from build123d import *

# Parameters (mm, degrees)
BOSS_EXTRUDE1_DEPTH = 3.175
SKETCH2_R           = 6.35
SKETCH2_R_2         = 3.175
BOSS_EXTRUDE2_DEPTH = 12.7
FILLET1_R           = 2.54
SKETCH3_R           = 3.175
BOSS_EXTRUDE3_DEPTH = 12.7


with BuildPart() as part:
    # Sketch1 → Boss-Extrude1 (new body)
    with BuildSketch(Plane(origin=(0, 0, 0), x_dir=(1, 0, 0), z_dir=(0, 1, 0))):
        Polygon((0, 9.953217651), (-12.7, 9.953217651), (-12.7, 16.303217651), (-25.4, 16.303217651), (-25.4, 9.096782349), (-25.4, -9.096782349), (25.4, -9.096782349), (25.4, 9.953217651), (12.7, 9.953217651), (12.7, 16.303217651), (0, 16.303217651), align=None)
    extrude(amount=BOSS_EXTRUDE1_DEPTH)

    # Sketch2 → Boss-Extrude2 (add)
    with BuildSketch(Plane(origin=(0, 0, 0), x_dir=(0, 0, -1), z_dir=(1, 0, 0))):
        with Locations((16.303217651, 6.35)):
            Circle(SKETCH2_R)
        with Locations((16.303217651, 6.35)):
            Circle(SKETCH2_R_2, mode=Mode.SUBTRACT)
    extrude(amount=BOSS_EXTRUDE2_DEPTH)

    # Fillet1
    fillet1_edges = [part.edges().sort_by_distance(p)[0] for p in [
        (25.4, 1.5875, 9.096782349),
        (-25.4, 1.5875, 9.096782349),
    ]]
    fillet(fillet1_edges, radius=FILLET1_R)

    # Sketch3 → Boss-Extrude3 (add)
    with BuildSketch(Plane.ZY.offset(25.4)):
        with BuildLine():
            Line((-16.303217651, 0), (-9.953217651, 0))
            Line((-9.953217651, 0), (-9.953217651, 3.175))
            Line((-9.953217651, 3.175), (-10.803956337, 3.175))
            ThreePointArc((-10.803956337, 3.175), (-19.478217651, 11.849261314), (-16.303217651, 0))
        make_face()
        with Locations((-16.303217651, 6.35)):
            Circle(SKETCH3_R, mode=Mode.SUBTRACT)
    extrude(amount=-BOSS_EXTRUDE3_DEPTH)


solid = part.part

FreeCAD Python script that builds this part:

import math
import FreeCAD as App
import Part
import Sketcher
from FreeCAD import Vector
Q = App.Units.Quantity


def edges_at(feature, points):
    """Names of the edges that pass closest to the given points."""
    edges = feature.Shape.Edges
    near = lambda p: min(range(len(edges)), key=lambda i: edges[i].distToShape(Part.Vertex(*p))[0])
    return sorted({f"Edge{near(p) + 1}" for p in points})

doc = App.newDocument("Part")
body = doc.addObject("PartDesign::Body", "Body")

# Sketch on XZ plane
sketch1 = doc.addObject("Sketcher::SketchObject", "Sketch")
body.addObject(sketch1)
sketch1.AttachmentSupport = (doc.XZ_Plane, [""])
sketch1.MapMode = "FlatFace"
sketch1.addGeometry(Part.LineSegment(Vector(0, -10, 0), Vector(-13, -10, 0)), False)
sketch1.addGeometry(Part.LineSegment(Vector(-13, -10, 0), Vector(-13, -16, 0)), False)
sketch1.addGeometry(Part.LineSegment(Vector(-13, -16, 0), Vector(-25, -16, 0)), False)
sketch1.addGeometry(Part.LineSegment(Vector(-25, -16, 0), Vector(-25, 9, 0)), False)
sketch1.addGeometry(Part.LineSegment(Vector(-25, 9, 0), Vector(25, 9, 0)), False)
sketch1.addGeometry(Part.LineSegment(Vector(25, 9, 0), Vector(25, -10, 0)), False)
sketch1.addGeometry(Part.LineSegment(Vector(25, -10, 0), Vector(13, -10, 0)), False)
sketch1.addGeometry(Part.LineSegment(Vector(13, -10, 0), Vector(13, -16, 0)), False)
sketch1.addGeometry(Part.LineSegment(Vector(13, -16, 0), Vector(0, -16, 0)), False)
sketch1.addGeometry(Part.LineSegment(Vector(0, -16, 0), Vector(0, -10, 0)), False)
sketch1.addConstraint(Sketcher.Constraint("Coincident", 0, 2, 1, 1))
sketch1.addConstraint(Sketcher.Constraint("Coincident", 1, 2, 2, 1))
sketch1.addConstraint(Sketcher.Constraint("Coincident", 2, 2, 3, 1))
sketch1.addConstraint(Sketcher.Constraint("Coincident", 3, 2, 4, 1))
sketch1.addConstraint(Sketcher.Constraint("Coincident", 4, 2, 5, 1))
sketch1.addConstraint(Sketcher.Constraint("Coincident", 5, 2, 6, 1))
sketch1.addConstraint(Sketcher.Constraint("Coincident", 6, 2, 7, 1))
sketch1.addConstraint(Sketcher.Constraint("Coincident", 7, 2, 8, 1))
sketch1.addConstraint(Sketcher.Constraint("Coincident", 8, 2, 9, 1))
sketch1.addConstraint(Sketcher.Constraint("Coincident", 9, 2, 0, 1))
sketch1.addConstraint(Sketcher.Constraint("Horizontal", 0))
sketch1.addConstraint(Sketcher.Constraint("Vertical", 1))
sketch1.addConstraint(Sketcher.Constraint("Horizontal", 2))
sketch1.addConstraint(Sketcher.Constraint("Vertical", 3))
sketch1.addConstraint(Sketcher.Constraint("Horizontal", 4))
sketch1.addConstraint(Sketcher.Constraint("Vertical", 5))
sketch1.addConstraint(Sketcher.Constraint("Horizontal", 6))
sketch1.addConstraint(Sketcher.Constraint("Vertical", 7))
sketch1.addConstraint(Sketcher.Constraint("Horizontal", 8))
sketch1.addConstraint(Sketcher.Constraint("Vertical", 9))
sketch1.addConstraint(Sketcher.Constraint("Symmetric", 0, 2, 6, 2, -2))
sketch1.addConstraint(Sketcher.Constraint("PointOnObject", 8, 2, -2))
sketch1.addConstraint(Sketcher.Constraint("Horizontal", 2, 2, 7, 2))
sketch1.addConstraint(Sketcher.Constraint("Equal", 0, 2))
sketch1.addConstraint(Sketcher.Constraint("Equal", 2, 6))
sketch1.addConstraint(Sketcher.Constraint("DistanceX", 4, 1, 4, 2, Q("2 in")))
sketch1.addConstraint(Sketcher.Constraint("DistanceY", 3, 1, 3, 2, Q("1 in")))
sketch1.addConstraint(Sketcher.Constraint("DistanceY", 1, 2, 1, 1, Q("0.25 in")))
sketch1.addConstraint(Sketcher.Constraint("DistanceY", 0, 2, -1, 1, 9.953218))
pad1 = doc.addObject("PartDesign::Pad", "Pad")
body.addObject(pad1)
pad1.Profile = sketch1
pad1.Length = Q("0.125 in")
pad1.Reversed = True

# Sketch on YZ plane
sketch2 = doc.addObject("Sketcher::SketchObject", "Sketch001")
body.addObject(sketch2)
sketch2.AttachmentSupport = (doc.YZ_Plane, [""])
sketch2.MapMode = "FlatFace"
sketch2.addGeometry(Part.Circle(Vector(6.3, -16.3, 0), Vector(0, 0, 1), 6.3), False)
sketch2.addGeometry(Part.Circle(Vector(6.3, -16.3, 0), Vector(0, 0, 1), 3.2), False)
sketch2.addConstraint(Sketcher.Constraint("Coincident", 1, 3, 0, 3))
sketch2.addConstraint(Sketcher.Constraint("Diameter", 0, Q("0.5 in")))
sketch2.addConstraint(Sketcher.Constraint("Diameter", 1, Q("0.25 in")))
sketch2.addConstraint(Sketcher.Constraint("DistanceX", -1, 1, 0, 3, Q("0.25 in")))
sketch2.addConstraint(Sketcher.Constraint("DistanceY", 0, 3, -1, 1, 16.303218))
pad2 = doc.addObject("PartDesign::Pad", "Pad001")
body.addObject(pad2)
pad2.Profile = sketch2
pad2.Length = Q("0.5 in")
doc.recompute()

fillet = doc.addObject("PartDesign::Fillet", "Fillet")
body.addObject(fillet)
fillet.Base = (pad2, edges_at(pad2, [(25.4, 1.587, 9.097), (-25.4, 1.587, 9.097)]))
fillet.Radius = Q("0.1 in")

# Sketch on YZ plane
sketch3 = doc.addObject("Sketcher::SketchObject", "Sketch002")
body.addObject(sketch3)
sketch3.AttachmentSupport = (doc.YZ_Plane, [""])
sketch3.MapMode = "FlatFace"
sketch3.AttachmentOffset = App.Placement(Vector(0, 0, -1 * 25.4), App.Rotation())
sketch3.addGeometry(Part.LineSegment(Vector(0, -16.3, 0), Vector(0, -10, 0)), False)
sketch3.addGeometry(Part.LineSegment(Vector(0, -10, 0), Vector(3.2, -10, 0)), False)
sketch3.addGeometry(Part.LineSegment(Vector(3.2, -10, 0), Vector(3.2, -10.8, 0)), False)
sketch3.addGeometry(Part.ArcOfCircle(Part.Circle(Vector(6.3, -16.3, 0), Vector(0, 0, 1), 6.3), math.radians(180), math.radians(480)), False)
sketch3.addGeometry(Part.Circle(Vector(6.3, -16.3, 0), Vector(0, 0, 1), 3.2), False)
sketch3.addConstraint(Sketcher.Constraint("Coincident", 0, 2, 1, 1))
sketch3.addConstraint(Sketcher.Constraint("Coincident", 1, 2, 2, 1))
sketch3.addConstraint(Sketcher.Constraint("Coincident", 2, 2, 3, 2))
sketch3.addConstraint(Sketcher.Constraint("Tangent", 3, 1, 0, 1))
sketch3.addConstraint(Sketcher.Constraint("Vertical", 0))
sketch3.addConstraint(Sketcher.Constraint("Horizontal", 1))
sketch3.addConstraint(Sketcher.Constraint("Vertical", 2))
sketch3.addConstraint(Sketcher.Constraint("Coincident", 4, 3, 3, 3))
sketch3.addConstraint(Sketcher.Constraint("PointOnObject", 0, 2, -2))
sketch3.addConstraint(Sketcher.Constraint("Diameter", 4, Q("0.25 in")))
sketch3.addConstraint(Sketcher.Constraint("Radius", 3, Q("0.25 in")))
sketch3.addConstraint(Sketcher.Constraint("DistanceY", 0, 1, 0, 2, Q("0.25 in")))
sketch3.addConstraint(Sketcher.Constraint("DistanceX", 1, 1, 1, 2, Q("0.125 in")))
sketch3.addConstraint(Sketcher.Constraint("DistanceY", 3, 3, -1, 1, 16.303218))
pad3 = doc.addObject("PartDesign::Pad", "Pad002")
body.addObject(pad3)
pad3.Profile = sketch3
pad3.Length = Q("0.5 in")

doc.recompute()
